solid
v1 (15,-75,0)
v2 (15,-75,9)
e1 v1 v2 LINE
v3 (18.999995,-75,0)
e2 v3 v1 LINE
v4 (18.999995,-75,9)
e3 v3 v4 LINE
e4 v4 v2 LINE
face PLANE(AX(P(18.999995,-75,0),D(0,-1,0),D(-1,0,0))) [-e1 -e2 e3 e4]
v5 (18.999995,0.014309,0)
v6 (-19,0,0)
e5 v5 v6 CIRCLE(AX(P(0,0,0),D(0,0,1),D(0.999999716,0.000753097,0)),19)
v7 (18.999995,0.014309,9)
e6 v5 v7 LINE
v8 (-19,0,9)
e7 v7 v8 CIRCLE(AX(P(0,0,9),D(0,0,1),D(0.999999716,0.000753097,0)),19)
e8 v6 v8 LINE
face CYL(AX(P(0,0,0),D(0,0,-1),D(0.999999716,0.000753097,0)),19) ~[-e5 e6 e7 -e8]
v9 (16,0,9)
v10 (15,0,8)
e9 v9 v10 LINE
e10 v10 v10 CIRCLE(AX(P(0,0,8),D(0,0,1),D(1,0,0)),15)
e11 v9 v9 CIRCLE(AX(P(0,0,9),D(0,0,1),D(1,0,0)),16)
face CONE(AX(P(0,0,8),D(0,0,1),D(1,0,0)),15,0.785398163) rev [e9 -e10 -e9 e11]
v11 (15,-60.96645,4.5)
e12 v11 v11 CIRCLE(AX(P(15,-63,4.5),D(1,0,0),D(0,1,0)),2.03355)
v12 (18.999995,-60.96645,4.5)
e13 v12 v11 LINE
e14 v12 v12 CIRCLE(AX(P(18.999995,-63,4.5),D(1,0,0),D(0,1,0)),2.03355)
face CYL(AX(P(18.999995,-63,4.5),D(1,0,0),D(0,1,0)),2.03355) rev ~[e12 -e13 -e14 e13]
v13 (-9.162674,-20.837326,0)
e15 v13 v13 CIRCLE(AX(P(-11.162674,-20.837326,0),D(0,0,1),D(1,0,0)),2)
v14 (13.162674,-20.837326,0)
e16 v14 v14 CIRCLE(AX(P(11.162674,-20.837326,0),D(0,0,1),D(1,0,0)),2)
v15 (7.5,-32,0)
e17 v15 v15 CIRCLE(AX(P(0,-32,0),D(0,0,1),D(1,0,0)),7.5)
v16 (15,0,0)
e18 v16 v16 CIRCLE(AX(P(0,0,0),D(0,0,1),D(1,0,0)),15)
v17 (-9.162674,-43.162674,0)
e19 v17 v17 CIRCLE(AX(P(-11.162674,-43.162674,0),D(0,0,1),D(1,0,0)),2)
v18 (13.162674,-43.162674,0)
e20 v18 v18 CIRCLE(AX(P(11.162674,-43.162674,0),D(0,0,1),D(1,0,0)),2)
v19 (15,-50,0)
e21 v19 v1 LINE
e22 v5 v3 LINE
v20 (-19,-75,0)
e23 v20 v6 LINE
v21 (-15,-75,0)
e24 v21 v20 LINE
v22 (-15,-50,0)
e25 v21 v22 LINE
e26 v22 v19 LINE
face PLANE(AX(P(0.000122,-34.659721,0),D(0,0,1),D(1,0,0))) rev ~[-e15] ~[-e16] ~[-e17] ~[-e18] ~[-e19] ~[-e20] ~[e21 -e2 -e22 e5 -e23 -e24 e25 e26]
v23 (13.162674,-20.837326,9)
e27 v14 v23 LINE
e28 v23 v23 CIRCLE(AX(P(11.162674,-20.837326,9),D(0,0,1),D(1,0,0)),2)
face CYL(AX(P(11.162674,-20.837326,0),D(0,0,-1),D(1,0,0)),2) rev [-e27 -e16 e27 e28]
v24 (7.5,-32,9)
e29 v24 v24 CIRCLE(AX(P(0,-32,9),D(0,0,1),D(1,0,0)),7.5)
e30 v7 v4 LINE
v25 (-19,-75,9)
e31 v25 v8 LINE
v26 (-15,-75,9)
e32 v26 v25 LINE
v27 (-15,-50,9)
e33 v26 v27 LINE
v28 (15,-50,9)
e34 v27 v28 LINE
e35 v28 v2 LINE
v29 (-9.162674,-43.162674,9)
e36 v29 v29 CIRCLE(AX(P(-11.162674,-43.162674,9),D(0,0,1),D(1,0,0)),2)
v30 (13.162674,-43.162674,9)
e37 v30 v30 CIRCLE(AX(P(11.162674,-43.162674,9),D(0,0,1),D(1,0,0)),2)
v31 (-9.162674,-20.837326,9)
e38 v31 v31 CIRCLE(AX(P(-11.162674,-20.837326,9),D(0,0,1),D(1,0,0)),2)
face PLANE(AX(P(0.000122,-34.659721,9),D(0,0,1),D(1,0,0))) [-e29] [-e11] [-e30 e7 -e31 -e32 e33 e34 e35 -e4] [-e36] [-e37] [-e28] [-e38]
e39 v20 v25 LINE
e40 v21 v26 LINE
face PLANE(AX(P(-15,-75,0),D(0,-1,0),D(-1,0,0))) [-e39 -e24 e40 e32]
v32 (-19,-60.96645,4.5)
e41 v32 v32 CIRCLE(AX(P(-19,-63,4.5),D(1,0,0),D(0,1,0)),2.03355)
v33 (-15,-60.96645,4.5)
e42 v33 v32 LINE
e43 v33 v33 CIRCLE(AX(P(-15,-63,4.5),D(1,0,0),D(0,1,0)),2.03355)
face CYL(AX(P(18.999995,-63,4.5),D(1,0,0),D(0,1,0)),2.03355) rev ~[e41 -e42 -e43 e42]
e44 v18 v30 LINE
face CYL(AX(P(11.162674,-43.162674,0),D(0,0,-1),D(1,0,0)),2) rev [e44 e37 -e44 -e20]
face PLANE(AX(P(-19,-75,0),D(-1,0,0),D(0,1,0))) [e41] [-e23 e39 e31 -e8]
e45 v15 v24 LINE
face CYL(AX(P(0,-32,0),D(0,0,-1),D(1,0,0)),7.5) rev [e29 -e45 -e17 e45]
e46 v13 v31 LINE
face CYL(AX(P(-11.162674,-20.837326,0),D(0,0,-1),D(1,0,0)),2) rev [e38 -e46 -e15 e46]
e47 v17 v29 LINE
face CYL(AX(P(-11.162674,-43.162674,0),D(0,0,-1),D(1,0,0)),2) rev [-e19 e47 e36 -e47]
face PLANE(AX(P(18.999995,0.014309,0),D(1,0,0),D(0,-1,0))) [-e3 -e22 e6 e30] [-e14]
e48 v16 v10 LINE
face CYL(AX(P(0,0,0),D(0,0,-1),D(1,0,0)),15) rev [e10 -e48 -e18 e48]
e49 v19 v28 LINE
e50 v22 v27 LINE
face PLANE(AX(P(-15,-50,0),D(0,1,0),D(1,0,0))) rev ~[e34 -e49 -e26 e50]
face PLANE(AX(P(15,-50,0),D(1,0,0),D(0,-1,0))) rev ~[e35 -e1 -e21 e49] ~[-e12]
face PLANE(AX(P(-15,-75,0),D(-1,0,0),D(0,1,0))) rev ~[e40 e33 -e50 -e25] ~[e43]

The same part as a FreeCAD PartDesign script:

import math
import FreeCAD as App
import Part
import Sketcher
from FreeCAD import Vector


def edges_at(feature, points):
    """Names of the edges that pass closest to the given points."""
    edges = feature.Shape.Edges
    near = lambda p: min(range(len(edges)), key=lambda i: edges[i].distToShape(Part.Vertex(*p))[0])
    return sorted({f"Edge{near(p) + 1}" for p in points})

doc = App.newDocument("Part")
params = doc.addObject("Spreadsheet::Sheet", "Params")
for row, (alias, value) in enumerate([
    ("sketch1_diameter", "4 mm"),
    ("sketch1_diameter2", "15 mm"),
    ("sketch1_diameter3", "30 mm"),
    ("sketch1_radius", "19 mm"),
    ("sketch1_width", "4 mm"),
    ("pad1_length", "9 mm"),
    ("chamfer_size", "1 mm"),
], start=1):
    params.set(f"A{row}", alias)
    params.set(f"B{row}", "=" + value)
    params.setAlias(f"B{row}", alias)

body = doc.addObject("PartDesign::Body", "Body")

# Sketch on XY plane
sketch1 = body.newObject("Sketcher::SketchObject", "Sketch")
sketch1.AttachmentSupport = (doc.getObject("XY_Plane"), [""])
sketch1.MapMode = "FlatFace"
sketch1.addGeometry(Part.ArcOfCircle(Part.Circle(Vector(0, 0, 0), Vector(0, 0, 1), 19), math.radians(0), math.radians(180)), False)
sketch1.addGeometry(Part.LineSegment(Vector(-19, 0, 0), Vector(-19, -75, 0)), False)
sketch1.addGeometry(Part.LineSegment(Vector(-19, -75, 0), Vector(-15, -75, 0)), False)
sketch1.addGeometry(Part.LineSegment(Vector(-15, -75, 0), Vector(-15, -50, 0)), False)
sketch1.addGeometry(Part.LineSegment(Vector(-15, -50, 0), Vector(15, -50, 0)), False)
sketch1.addGeometry(Part.LineSegment(Vector(15, -50, 0), Vector(15, -75, 0)), False)
sketch1.addGeometry(Part.LineSegment(Vector(15, -75, 0), Vector(19, -75, 0)), False)
sketch1.addGeometry(Part.LineSegment(Vector(19, -75, 0), Vector(19, 0, 0)), False)
sketch1.addGeometry(Part.Circle(Vector(-11.2, -43.2, 0), Vector(0, 0, 1), 2), False)
sketch1.addGeometry(Part.Circle(Vector(-11.2, -20.8, 0), Vector(0, 0, 1), 2), False)
sketch1.addGeometry(Part.Circle(Vector(0, -32, 0), Vector(0, 0, 1), 7.5), False)
sketch1.addGeometry(Part.Circle(Vector(11.2, -43.2, 0), Vector(0, 0, 1), 2), False)
sketch1.addGeometry(Part.Circle(Vector(11.2, -20.8, 0), Vector(0, 0, 1), 2), False)
sketch1.addGeometry(Part.Circle(Vector(0, 0, 0), Vector(0, 0, 1), 15), False)
sketch1.addConstraint(Sketcher.Constraint("Tangent", 0, 2, 1, 1))
sketch1.addConstraint(Sketcher.Constraint("Coincident", 1, 2, 2, 1))
sketch1.addConstraint(Sketcher.Constraint("Coincident", 2, 2, 3, 1))
sketch1.addConstraint(Sketcher.Constraint("Coincident", 3, 2, 4, 1))
sketch1.addConstraint(Sketcher.Constraint("Coincident", 4, 2, 5, 1))
sketch1.addConstraint(Sketcher.Constraint("Coincident", 5, 2, 6, 1))
sketch1.addConstraint(Sketcher.Constraint("Coincident", 6, 2, 7, 1))
sketch1.addConstraint(Sketcher.Constraint("Coincident", 7, 2, 0, 1))
sketch1.addConstraint(Sketcher.Constraint("Vertical", 1))
sketch1.addConstraint(Sketcher.Constraint("Horizontal", 2))
sketch1.addConstraint(Sketcher.Constraint("Vertical", 3))
sketch1.addConstraint(Sketcher.Constraint("Horizontal", 4))
sketch1.addConstraint(Sketcher.Constraint("Vertical", 5))
sketch1.addConstraint(Sketcher.Constraint("Horizontal", 6))
sketch1.addConstraint(Sketcher.Constraint("Vertical", 7))
sketch1.addConstraint(Sketcher.Constraint("Coincident", 0, 3, -1, 1))
sketch1.addConstraint(Sketcher.Constraint("Coincident", 13, 3, -1, 1))
sketch1.addConstraint(Sketcher.Constraint("Equal", 8, 9))
sketch1.addConstraint(Sketcher.Constraint("Equal", 9, 11))
sketch1.addConstraint(Sketcher.Constraint("Equal", 11, 12))
sketch1.addConstraint(Sketcher.Constraint("Symmetric", 8, 3, 11, 3, -2))
sketch1.addConstraint(Sketcher.Constraint("Symmetric", 9, 3, 12, 3, -2))
sketch1.addConstraint(Sketcher.Constraint("Symmetric", 2, 2, 5, 2, -2))
sketch1.addConstraint(Sketcher.Constraint("PointOnObject", 10, 3, -2))
sketch1.addConstraint(Sketcher.Constraint("Vertical", 8, 3, 9, 3))
sketch1.addConstraint(Sketcher.Constraint("Diameter", 8, 4.0))
sketch1.addConstraint(Sketcher.Constraint("Diameter", 10, 15.0))
sketch1.addConstraint(Sketcher.Constraint("Diameter", 13, 30.0))
sketch1.addConstraint(Sketcher.Constraint("Radius", 0, 19.0))
sketch1.addConstraint(Sketcher.Constraint("DistanceX", 2, 1, 2, 2, 4.0))
sketch1.addConstraint(Sketcher.Constraint("DistanceY", 1, 2, 1, 1, 75.0))
sketch1.addConstraint(Sketcher.Constraint("DistanceY", 3, 1, 3, 2, 25.0))
sketch1.addConstraint(Sketcher.Constraint("DistanceY", 10, 3, -1, 1, 32.0))
sketch1.addConstraint(Sketcher.Constraint("DistanceY", 7, 1, 7, 2, 75.014309))
sketch1.addConstraint(Sketcher.Constraint("DistanceY", 8, 3, 9, 3, 22.325348))
sketch1.addConstraint(Sketcher.Constraint("DistanceX", 8, 3, 11, 3, 22.325348))
sketch1.addConstraint(Sketcher.Constraint("DistanceY", 8, 3, -1, 1, 43.162674))
sketch1.setExpression("Constraints[25]", "Params.sketch1_diameter")
sketch1.setExpression("Constraints[26]", "Params.sketch1_diameter2")
sketch1.setExpression("Constraints[27]", "Params.sketch1_diameter3")
sketch1.setExpression("Constraints[28]", "Params.sketch1_radius")
sketch1.setExpression("Constraints[29]", "Params.sketch1_width")
pad1 = body.newObject("PartDesign::Pad", "Pad")
pad1.Profile = sketch1
pad1.setExpression("Length", "Params.pad1_length")

# Sketch on YZ plane
sketch2 = body.newObject("Sketcher::SketchObject", "Sketch001")
sketch2.AttachmentSupport = (doc.getObject("YZ_Plane"), [""])
sketch2.MapMode = "FlatFace"
sketch2.AttachmentOffset = App.Placement(Vector(0, 0, 18.999995), App.Rotation())
sketch2.addGeometry(Part.Circle(Vector(-63, 4.5, 0), Vector(0, 0, 1), 2), False)
sketch2.addConstraint(Sketcher.Constraint("DistanceX", 0, 3, -1, 1, 63.0))
sketch2.addConstraint(Sketcher.Constraint("Diameter", 0, 4.0671))
sketch2.addConstraint(Sketcher.Constraint("DistanceY", -1, 1, 0, 3, 4.5))
pocket1 = body.newObject("PartDesign::Pocket", "Pocket")
pocket1.Profile = sketch2
pocket1.Type = "ThroughAll"
doc.recompute()

chamfer = body.newObject("PartDesign::Chamfer", "Chamfer")
chamfer.Base = (pocket1, edges_at(pocket1, [(-15, 0, 9)]))
chamfer.setExpression("Size", "Params.chamfer_size")

doc.recompute()
